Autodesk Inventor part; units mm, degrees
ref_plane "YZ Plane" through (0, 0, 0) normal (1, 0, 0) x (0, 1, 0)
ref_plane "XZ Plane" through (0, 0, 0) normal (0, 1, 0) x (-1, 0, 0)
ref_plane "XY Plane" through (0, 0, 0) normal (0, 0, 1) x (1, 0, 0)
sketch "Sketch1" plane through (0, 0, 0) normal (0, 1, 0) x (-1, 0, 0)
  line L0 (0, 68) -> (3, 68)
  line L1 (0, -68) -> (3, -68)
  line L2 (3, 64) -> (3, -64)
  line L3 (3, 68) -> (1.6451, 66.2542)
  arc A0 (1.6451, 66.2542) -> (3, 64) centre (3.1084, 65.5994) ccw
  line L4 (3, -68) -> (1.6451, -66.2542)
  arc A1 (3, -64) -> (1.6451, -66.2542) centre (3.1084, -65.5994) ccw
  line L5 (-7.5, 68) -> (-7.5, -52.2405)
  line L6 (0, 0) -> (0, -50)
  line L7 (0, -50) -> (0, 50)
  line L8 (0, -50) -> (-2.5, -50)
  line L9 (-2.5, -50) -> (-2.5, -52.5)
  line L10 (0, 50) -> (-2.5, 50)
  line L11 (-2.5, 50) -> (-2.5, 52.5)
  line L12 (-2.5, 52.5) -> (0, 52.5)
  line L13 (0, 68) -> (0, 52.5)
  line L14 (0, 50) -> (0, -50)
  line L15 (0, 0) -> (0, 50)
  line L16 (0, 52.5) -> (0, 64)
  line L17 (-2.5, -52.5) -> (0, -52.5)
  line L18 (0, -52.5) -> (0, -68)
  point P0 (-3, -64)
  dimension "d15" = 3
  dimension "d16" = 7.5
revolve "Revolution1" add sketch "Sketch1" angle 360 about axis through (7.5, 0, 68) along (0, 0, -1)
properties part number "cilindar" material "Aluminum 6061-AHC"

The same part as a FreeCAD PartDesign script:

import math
import FreeCAD as App
import Part
import Sketcher
from FreeCAD import Vector

doc = App.newDocument("Part")
params = doc.addObject("Spreadsheet::Sheet", "Params")
for row, (alias, value) in enumerate([
    ("sketch1_width", "3 mm"),
    ("sketch1_height", "100 mm"),
    ("sketch1_height2", "128 mm"),
    ("sketch1_height3", "136 mm"),
    ("sketch1_width2", "2.5 mm"),
    ("revolution_angle", "360 deg"),
], start=1):
    params.set(f"A{row}", alias)
    params.set(f"B{row}", "=" + value)
    params.setAlias(f"B{row}", alias)

body = doc.addObject("PartDesign::Body", "Body")

# Sketch on XZ plane
sketch1 = doc.addObject("Sketcher::SketchObject", "Sketch")
body.addObject(sketch1)
sketch1.AttachmentSupport = (doc.XZ_Plane, [""])
sketch1.MapMode = "FlatFace"
sketch1.addGeometry(Part.LineSegment(Vector(-3, 68, 0), Vector(0, 68, 0)), False)
sketch1.addGeometry(Part.LineSegment(Vector(0, 68, 0), Vector(0, 52.5, 0)), False)
sketch1.addGeometry(Part.LineSegment(Vector(0, 52.5, 0), Vector(2.5, 52.5, 0)), False)
sketch1.addGeometry(Part.LineSegment(Vector(2.5, 52.5, 0), Vector(2.5, 50, 0)), False)
sketch1.addGeometry(Part.LineSegment(Vector(2.5, 50, 0), Vector(0, 50, 0)), False)
sketch1.addGeometry(Part.LineSegment(Vector(0, 50, 0), Vector(0, -50, 0)), False)
sketch1.addGeometry(Part.LineSegment(Vector(0, -50, 0), Vector(2.5, -50, 0)), False)
sketch1.addGeometry(Part.LineSegment(Vector(2.5, -50, 0), Vector(2.5, -52.5, 0)), False)
sketch1.addGeometry(Part.LineSegment(Vector(2.5, -52.5, 0), Vector(0, -52.5, 0)), False)
sketch1.addGeometry(Part.LineSegment(Vector(0, -52.5, 0), Vector(0, -68, 0)), False)
sketch1.addGeometry(Part.LineSegment(Vector(0, -68, 0), Vector(-3, -68, 0)), False)
sketch1.addGeometry(Part.LineSegment(Vector(-3, -68, 0), Vector(-1.6, -66.3, 0)), False)
sketch1.addGeometry(Part.ArcOfCircle(Part.Circle(Vector(-3.1, -65.6, 0), Vector(0, 0, 1), 1.6), math.radians(-24), math.radians(86)), False)
sketch1.addGeometry(Part.LineSegment(Vector(-3, -64, 0), Vector(-3, 64, 0)), False)
sketch1.addGeometry(Part.ArcOfCircle(Part.Circle(Vector(-3.1, 65.6, 0), Vector(0, 0, 1), 1.6), math.radians(-86), math.radians(24)), False)
sketch1.addGeometry(Part.LineSegment(Vector(-1.6, 66.3, 0), Vector(-3, 68, 0)), False)
sketch1.addGeometry(Part.LineSegment(Vector(7.5, 68, 0), Vector(7.5, -68, 0)), True)  # axis
sketch1.addConstraint(Sketcher.Constraint("Coincident", 0, 2, 1, 1))
sketch1.addConstraint(Sketcher.Constraint("Coincident", 1, 2, 2, 1))
sketch1.addConstraint(Sketcher.Constraint("Coincident", 2, 2, 3, 1))
sketch1.addConstraint(Sketcher.Constraint("Coincident", 3, 2, 4, 1))
sketch1.addConstraint(Sketcher.Constraint("Coincident", 4, 2, 5, 1))
sketch1.addConstraint(Sketcher.Constraint("Coincident", 5, 2, 6, 1))
sketch1.addConstraint(Sketcher.Constraint("Coincident", 6, 2, 7, 1))
sketch1.addConstraint(Sketcher.Constraint("Coincident", 7, 2, 8, 1))
sketch1.addConstraint(Sketcher.Constraint("Coincident", 8, 2, 9, 1))
sketch1.addConstraint(Sketcher.Constraint("Coincident", 9, 2, 10, 1))
sketch1.addConstraint(Sketcher.Constraint("Coincident", 10, 2, 11, 1))
sketch1.addConstraint(Sketcher.Constraint("Coincident", 11, 2, 12, 1))
sketch1.addConstraint(Sketcher.Constraint("Coincident", 12, 2, 13, 1))
sketch1.addConstraint(Sketcher.Constraint("Coincident", 13, 2, 14, 1))
sketch1.addConstraint(Sketcher.Constraint("Coincident", 14, 2, 15, 1))
sketch1.addConstraint(Sketcher.Constraint("Coincident", 15, 2, 0, 1))
sketch1.addConstraint(Sketcher.Constraint("Horizontal", 0))
sketch1.addConstraint(Sketcher.Constraint("Vertical", 1))
sketch1.addConstraint(Sketcher.Constraint("Horizontal", 2))
sketch1.addConstraint(Sketcher.Constraint("Vertical", 3))
sketch1.addConstraint(Sketcher.Constraint("Horizontal", 4))
sketch1.addConstraint(Sketcher.Constraint("Vertical", 5))
sketch1.addConstraint(Sketcher.Constraint("Horizontal", 6))
sketch1.addConstraint(Sketcher.Constraint("Vertical", 7))
sketch1.addConstraint(Sketcher.Constraint("Horizontal", 8))
sketch1.addConstraint(Sketcher.Constraint("Vertical", 9))
sketch1.addConstraint(Sketcher.Constraint("Horizontal", 10))
sketch1.addConstraint(Sketcher.Constraint("Vertical", 13))
sketch1.addConstraint(Sketcher.Constraint("Vertical", 16))
sketch1.addConstraint(Sketcher.Constraint("Equal", 12, 14))
sketch1.addConstraint(Sketcher.Constraint("Symmetric", 4, 2, 5, 2, -1, 1))
sketch1.addConstraint(Sketcher.Constraint("Symmetric", 1, 2, 8, 2, -1, 1))
sketch1.addConstraint(Sketcher.Constraint("Symmetric", 12, 3, 14, 3, -1))
sketch1.addConstraint(Sketcher.Constraint("Symmetric", 0, 2, 9, 2, -1))
sketch1.addConstraint(Sketcher.Constraint("Horizontal", 15, 2, 16, 1))
sketch1.addConstraint(Sketcher.Constraint("Horizontal", 10, 2, 16, 2))
sketch1.addConstraint(Sketcher.Constraint("Vertical", 3, 2, 6, 2))
sketch1.addConstraint(Sketcher.Constraint("Vertical", 10, 2, 12, 2))
sketch1.addConstraint(Sketcher.Constraint("Vertical", 11, 2, 14, 2))
sketch1.addConstraint(Sketcher.Constraint("Vertical", 13, 2, 15, 2))
sketch1.addConstraint(Sketcher.Constraint("Equal", 8, 3))
sketch1.addConstraint(Sketcher.Constraint("DistanceX", 0, 1, 0, 2, 3.0))
sketch1.addConstraint(Sketcher.Constraint("DistanceX", -1, 1, 16, 1, 7.5))
sketch1.addConstraint(Sketcher.Constraint("DistanceY", 5, 2, 5, 1, 100.0))
sketch1.addConstraint(Sketcher.Constraint("DistanceY", 13, 1, 13, 2, 128.0))
sketch1.addConstraint(Sketcher.Constraint("DistanceY", 16, 2, 16, 1, 136.0))
sketch1.addConstraint(Sketcher.Constraint("DistanceX", 2, 1, 2, 2, 2.5))
sketch1.addConstraint(Sketcher.Constraint("Radius", 12, 1.603))
sketch1.addConstraint(Sketcher.Constraint("Distance", 11, 2.21))
sketch1.addConstraint(Sketcher.Constraint("DistanceX", 11, 2, -1, 1, 1.645))
sketch1.setExpression("Constraints[41]", "Params.sketch1_width")
sketch1.setExpression("Constraints[43]", "Params.sketch1_height")
sketch1.setExpression("Constraints[44]", "Params.sketch1_height2")
sketch1.setExpression("Constraints[45]", "Params.sketch1_height3")
sketch1.setExpression("Constraints[46]", "Params.sketch1_width2")
revolution = doc.addObject("PartDesign::Revolution", "Revolution")
body.addObject(revolution)
revolution.Profile = sketch1
revolution.ReferenceAxis = (sketch1, ["Axis0"])
revolution.setExpression("Angle", "Params.revolution_angle")

doc.recompute()
